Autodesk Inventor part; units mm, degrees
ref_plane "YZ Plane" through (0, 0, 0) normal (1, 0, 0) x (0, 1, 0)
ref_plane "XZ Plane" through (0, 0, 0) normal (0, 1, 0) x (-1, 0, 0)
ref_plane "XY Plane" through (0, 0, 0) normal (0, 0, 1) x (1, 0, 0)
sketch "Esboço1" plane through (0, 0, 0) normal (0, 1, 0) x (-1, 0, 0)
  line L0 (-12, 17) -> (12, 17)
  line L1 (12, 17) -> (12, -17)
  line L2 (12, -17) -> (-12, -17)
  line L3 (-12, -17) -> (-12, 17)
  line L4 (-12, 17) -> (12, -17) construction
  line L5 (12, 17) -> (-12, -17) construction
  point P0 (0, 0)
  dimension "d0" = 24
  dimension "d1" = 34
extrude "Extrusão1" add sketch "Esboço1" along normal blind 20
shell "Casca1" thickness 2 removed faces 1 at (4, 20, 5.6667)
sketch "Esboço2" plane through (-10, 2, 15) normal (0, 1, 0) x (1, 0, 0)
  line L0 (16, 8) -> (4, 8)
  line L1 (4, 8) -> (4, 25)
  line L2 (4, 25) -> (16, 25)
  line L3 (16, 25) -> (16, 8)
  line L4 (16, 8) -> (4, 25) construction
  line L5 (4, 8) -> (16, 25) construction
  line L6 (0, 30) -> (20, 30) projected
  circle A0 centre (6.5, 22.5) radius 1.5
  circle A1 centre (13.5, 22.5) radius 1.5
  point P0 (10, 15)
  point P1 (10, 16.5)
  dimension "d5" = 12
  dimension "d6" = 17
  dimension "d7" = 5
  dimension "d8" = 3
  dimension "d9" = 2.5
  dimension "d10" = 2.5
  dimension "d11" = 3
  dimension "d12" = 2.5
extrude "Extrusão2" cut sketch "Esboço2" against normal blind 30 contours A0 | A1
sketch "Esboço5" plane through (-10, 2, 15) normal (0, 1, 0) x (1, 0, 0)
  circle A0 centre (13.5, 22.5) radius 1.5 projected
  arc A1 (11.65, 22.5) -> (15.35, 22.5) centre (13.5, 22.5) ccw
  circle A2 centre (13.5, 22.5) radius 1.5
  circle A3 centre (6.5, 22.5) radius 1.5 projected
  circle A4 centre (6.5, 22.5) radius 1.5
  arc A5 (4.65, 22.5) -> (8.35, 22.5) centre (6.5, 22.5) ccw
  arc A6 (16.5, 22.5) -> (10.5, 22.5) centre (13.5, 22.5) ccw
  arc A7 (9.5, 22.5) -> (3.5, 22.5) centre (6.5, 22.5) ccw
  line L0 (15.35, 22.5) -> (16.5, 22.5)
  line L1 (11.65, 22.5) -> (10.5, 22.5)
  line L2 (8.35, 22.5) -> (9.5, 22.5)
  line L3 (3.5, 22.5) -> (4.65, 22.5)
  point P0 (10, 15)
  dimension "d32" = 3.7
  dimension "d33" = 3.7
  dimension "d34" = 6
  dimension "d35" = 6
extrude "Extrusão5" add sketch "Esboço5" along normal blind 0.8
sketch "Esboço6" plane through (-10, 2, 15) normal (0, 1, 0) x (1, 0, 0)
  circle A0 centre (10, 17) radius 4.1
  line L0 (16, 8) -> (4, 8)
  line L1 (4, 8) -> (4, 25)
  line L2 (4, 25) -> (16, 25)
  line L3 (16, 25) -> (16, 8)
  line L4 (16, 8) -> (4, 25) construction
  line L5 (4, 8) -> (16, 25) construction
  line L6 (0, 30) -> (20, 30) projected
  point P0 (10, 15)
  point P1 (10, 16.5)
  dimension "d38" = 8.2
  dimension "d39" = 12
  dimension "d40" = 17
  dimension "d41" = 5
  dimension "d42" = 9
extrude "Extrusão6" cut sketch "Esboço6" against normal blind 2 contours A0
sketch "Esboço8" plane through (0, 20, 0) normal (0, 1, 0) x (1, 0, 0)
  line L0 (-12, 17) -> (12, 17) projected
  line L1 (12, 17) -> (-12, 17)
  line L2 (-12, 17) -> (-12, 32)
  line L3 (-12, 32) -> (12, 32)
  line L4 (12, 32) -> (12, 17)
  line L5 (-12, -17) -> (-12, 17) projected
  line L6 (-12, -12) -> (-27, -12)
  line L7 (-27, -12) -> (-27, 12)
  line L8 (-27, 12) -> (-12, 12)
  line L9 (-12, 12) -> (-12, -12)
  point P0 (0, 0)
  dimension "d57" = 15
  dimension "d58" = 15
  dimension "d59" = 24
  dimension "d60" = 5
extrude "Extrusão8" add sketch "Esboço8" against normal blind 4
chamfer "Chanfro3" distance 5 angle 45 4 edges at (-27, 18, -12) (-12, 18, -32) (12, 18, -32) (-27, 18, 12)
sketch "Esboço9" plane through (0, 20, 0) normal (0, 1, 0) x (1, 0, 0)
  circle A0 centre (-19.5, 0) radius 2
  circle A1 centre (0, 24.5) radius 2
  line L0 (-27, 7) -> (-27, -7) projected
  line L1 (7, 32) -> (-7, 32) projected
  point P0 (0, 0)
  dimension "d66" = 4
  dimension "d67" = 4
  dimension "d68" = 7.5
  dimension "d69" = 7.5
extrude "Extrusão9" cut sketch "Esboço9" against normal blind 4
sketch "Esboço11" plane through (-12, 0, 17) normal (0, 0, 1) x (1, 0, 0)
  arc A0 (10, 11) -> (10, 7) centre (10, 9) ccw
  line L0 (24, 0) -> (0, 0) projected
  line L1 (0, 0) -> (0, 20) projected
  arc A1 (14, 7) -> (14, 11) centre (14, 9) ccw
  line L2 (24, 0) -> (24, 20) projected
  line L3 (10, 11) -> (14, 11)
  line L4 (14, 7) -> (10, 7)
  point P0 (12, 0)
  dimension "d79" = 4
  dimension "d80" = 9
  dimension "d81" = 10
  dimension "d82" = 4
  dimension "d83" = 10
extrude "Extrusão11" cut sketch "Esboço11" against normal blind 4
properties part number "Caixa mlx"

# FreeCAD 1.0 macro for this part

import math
import FreeCAD as App
import Part
import Sketcher
from FreeCAD import Vector
Q = App.Units.Quantity


def edges_at(feature, points):
    """Names of the edges that pass closest to the given points."""
    edges = feature.Shape.Edges
    near = lambda p: min(range(len(edges)), key=lambda i: edges[i].distToShape(Part.Vertex(*p))[0])
    return sorted({f"Edge{near(p) + 1}" for p in points})


def faces_at(feature, points):
    """Names of the faces that lie closest to the given points."""
    faces = feature.Shape.Faces
    near = lambda p: min(range(len(faces)), key=lambda i: faces[i].distToShape(Part.Vertex(*p))[0])
    return sorted({f"Face{near(p) + 1}" for p in points})

doc = App.newDocument("Part")
body = doc.addObject("PartDesign::Body", "Body")

# Sketch on XZ plane
sketch1 = body.newObject("Sketcher::SketchObject", "Sketch")
sketch1.AttachmentSupport = (doc.getObject("XZ_Plane"), [""])
sketch1.MapMode = "FlatFace"
sketch1.addGeometry([
    Part.LineSegment(Vector(-12, 17, 0), Vector(12, 17, 0)),
    Part.LineSegment(Vector(12, 17, 0), Vector(12, -17, 0)),
    Part.LineSegment(Vector(12, -17, 0), Vector(-12, -17, 0)),
    Part.LineSegment(Vector(-12, -17, 0), Vector(-12, 17, 0)),
], False)
sketch1.addConstraint([
    Sketcher.Constraint("Coincident", 0, 2, 1, 1),
    Sketcher.Constraint("Coincident", 1, 2, 2, 1),
    Sketcher.Constraint("Coincident", 2, 2, 3, 1),
    Sketcher.Constraint("Coincident", 3, 2, 0, 1),
    Sketcher.Constraint("Horizontal", 0),
    Sketcher.Constraint("Vertical", 1),
    Sketcher.Constraint("Horizontal", 2),
    Sketcher.Constraint("Vertical", 3),
    Sketcher.Constraint("Symmetric", 0, 2, 2, 2, -1, 1),
    Sketcher.Constraint("DistanceX", 0, 1, 0, 2, Q("24 mm")),
    Sketcher.Constraint("DistanceY", 1, 2, 1, 1, Q("34 mm")),
])
pad1 = body.newObject("PartDesign::Pad", "Pad")
pad1.Profile = sketch1
pad1.Length = 20
pad1.Reversed = True
doc.recompute()

thickness = body.newObject("PartDesign::Thickness", "Thickness")
thickness.Base = (pad1, faces_at(pad1, [(4, 20, 5.667)]))
thickness.Value = 2
thickness.Reversed = True
thickness.Join = "Intersection"

# Sketch on XZ plane
sketch2 = body.newObject("Sketcher::SketchObject", "Sketch001")
sketch2.AttachmentSupport = (doc.getObject("XZ_Plane"), [""])
sketch2.MapMode = "FlatFace"
sketch2.AttachmentOffset = App.Placement(Vector(0, 0, -2), App.Rotation())
sketch2.addGeometry([
    Part.Circle(Vector(-3.5, -7.5, 0), Vector(0, 0, 1), 1.5),
    Part.Circle(Vector(3.5, -7.5, 0), Vector(0, 0, 1), 1.5),
], False)
sketch2.addConstraint([
    Sketcher.Constraint("Equal", 0, 1),
    Sketcher.Constraint("Symmetric", 0, 3, 1, 3, -2),
    Sketcher.Constraint("Diameter", 0, Q("3 mm")),
    Sketcher.Constraint("DistanceX", 0, 3, 1, 3, Q("7 mm")),
    Sketcher.Constraint("DistanceY", 0, 3, -1, 1, Q("7.5 mm")),
])
pocket1 = body.newObject("PartDesign::Pocket", "Pocket")
pocket1.Profile = sketch2
pocket1.Length = 30
pocket1.Reversed = True

# Sketch on XZ plane
sketch3 = body.newObject("Sketcher::SketchObject", "Sketch002")
sketch3.AttachmentSupport = (doc.getObject("XZ_Plane"), [""])
sketch3.MapMode = "FlatFace"
sketch3.AttachmentOffset = App.Placement(Vector(0, 0, -2), App.Rotation())
sketch3.addGeometry([
    Part.LineSegment(Vector(0.5, -7.5, 0), Vector(1.6, -7.5, 0)),  # 0
    Part.ArcOfCircle(Part.Circle(Vector(3.5, -7.5, 0), Vector(0, 0, 1), 1.8), math.radians(0), math.radians(180)),  # 1
    Part.LineSegment(Vector(5.3, -7.5, 0), Vector(6.5, -7.5, 0)),  # 2
    Part.ArcOfCircle(Part.Circle(Vector(3.5, -7.5, 0), Vector(0, 0, 1), 3), math.radians(180), math.radians(360)),  # 3
    Part.Circle(Vector(3.5, -7.5, 0), Vector(0, 0, 1), 1.5),  # 4
    Part.LineSegment(Vector(-6.5, -7.5, 0), Vector(-5.3, -7.5, 0)),  # 5
    Part.ArcOfCircle(Part.Circle(Vector(-3.5, -7.5, 0), Vector(0, 0, 1), 1.8), math.radians(0), math.radians(180)),  # 6
    Part.LineSegment(Vector(-1.6, -7.5, 0), Vector(-0.5, -7.5, 0)),  # 7
    Part.ArcOfCircle(Part.Circle(Vector(-3.5, -7.5, 0), Vector(0, 0, 1), 3), math.radians(180), math.radians(360)),  # 8
    Part.Circle(Vector(-3.5, -7.5, 0), Vector(0, 0, 1), 1.5),  # 9
], False)
sketch3.addConstraint([
    Sketcher.Constraint("Coincident", 0, 2, 1, 2),
    Sketcher.Constraint("Coincident", 1, 1, 2, 1),
    Sketcher.Constraint("Coincident", 2, 2, 3, 2),
    Sketcher.Constraint("Coincident", 3, 1, 0, 1),
    Sketcher.Constraint("Coincident", 5, 2, 6, 2),
    Sketcher.Constraint("Coincident", 6, 1, 7, 1),
    Sketcher.Constraint("Coincident", 7, 2, 8, 2),
    Sketcher.Constraint("Coincident", 8, 1, 5, 1),
    Sketcher.Constraint("Horizontal", 0),
    Sketcher.Constraint("Horizontal", 2),
    Sketcher.Constraint("Horizontal", 5),
    Sketcher.Constraint("Horizontal", 7),
    Sketcher.Constraint("Coincident", 3, 3, 1, 3),
    Sketcher.Constraint("Coincident", 4, 3, 1, 3),
    Sketcher.Constraint("Coincident", 8, 3, 6, 3),
    Sketcher.Constraint("Coincident", 9, 3, 6, 3),
    Sketcher.Constraint("Equal", 1, 6),
    Sketcher.Constraint("Equal", 3, 8),
    Sketcher.Constraint("Equal", 4, 9),
    Sketcher.Constraint("Symmetric", 1, 3, 6, 3, -2),
    Sketcher.Constraint("Horizontal", 9, 3, 0, 2),
    Sketcher.Constraint("Horizontal", 0, 2, 1, 1),
    Sketcher.Constraint("Horizontal", 3, 1, 5, 2),
    Sketcher.Constraint("Horizontal", 5, 2, 6, 1),
    Sketcher.Constraint("Radius", 3, Q("3 mm")),
    Sketcher.Constraint("Radius", 1, Q("1.85 mm")),
    Sketcher.Constraint("Diameter", 4, Q("3 mm")),
    Sketcher.Constraint("DistanceX", 6, 3, 1, 3, Q("7 mm")),
    Sketcher.Constraint("DistanceY", 1, 3, -1, 1, Q("7.5 mm")),
])
pad2 = body.newObject("PartDesign::Pad", "Pad001")
pad2.Profile = sketch3
pad2.Length = 0.8
pad2.Reversed = True

# Sketch on XZ plane
sketch4 = body.newObject("Sketcher::SketchObject", "Sketch003")
sketch4.AttachmentSupport = (doc.getObject("XZ_Plane"), [""])
sketch4.MapMode = "FlatFace"
sketch4.AttachmentOffset = App.Placement(Vector(0, 0, -2), App.Rotation())
sketch4.addGeometry(Part.Circle(Vector(0, -2, 0), Vector(0, 0, 1), 4.1), False)
sketch4.addConstraint([
    Sketcher.Constraint("PointOnObject", 0, 3, -2),
    Sketcher.Constraint("Diameter", 0, Q("8.2 mm")),
    Sketcher.Constraint("DistanceY", 0, 3, -1, 1, Q("2 mm")),
])
pocket2 = body.newObject("PartDesign::Pocket", "Pocket001")
pocket2.Profile = sketch4
pocket2.Length = 2
pocket2.Reversed = True

# Sketch on XZ plane
sketch5 = body.newObject("Sketcher::SketchObject", "Sketch004")
sketch5.AttachmentSupport = (doc.getObject("XZ_Plane"), [""])
sketch5.MapMode = "FlatFace"
sketch5.AttachmentOffset = App.Placement(Vector(0, 0, -20), App.Rotation())
sketch5.addGeometry([
    Part.LineSegment(Vector(-12, -32, 0), Vector(-12, -17, 0)),  # 0
    Part.LineSegment(Vector(-12, -17, 0), Vector(12, -17, 0)),  # 1
    Part.LineSegment(Vector(12, -17, 0), Vector(12, -32, 0)),  # 2
    Part.LineSegment(Vector(12, -32, 0), Vector(-12, -32, 0)),  # 3
    Part.LineSegment(Vector(-12, 12, 0), Vector(-12, -12, 0)),  # 4
    Part.LineSegment(Vector(-12, -12, 0), Vector(-27, -12, 0)),  # 5
    Part.LineSegment(Vector(-27, -12, 0), Vector(-27, 12, 0)),  # 6
    Part.LineSegment(Vector(-27, 12, 0), Vector(-12, 12, 0)),  # 7
], False)
sketch5.addConstraint([
    Sketcher.Constraint("Coincident", 0, 2, 1, 1),
    Sketcher.Constraint("Coincident", 1, 2, 2, 1),
    Sketcher.Constraint("Coincident", 2, 2, 3, 1),
    Sketcher.Constraint("Coincident", 3, 2, 0, 1),
    Sketcher.Constraint("Coincident", 4, 2, 5, 1),
    Sketcher.Constraint("Coincident", 5, 2, 6, 1),
    Sketcher.Constraint("Coincident", 6, 2, 7, 1),
    Sketcher.Constraint("Coincident", 7, 2, 4, 1),
    Sketcher.Constraint("Vertical", 0),
    Sketcher.Constraint("Horizontal", 1),
    Sketcher.Constraint("Vertical", 2),
    Sketcher.Constraint("Horizontal", 3),
    Sketcher.Constraint("Vertical", 4),
    Sketcher.Constraint("Horizontal", 5),
    Sketcher.Constraint("Vertical", 6),
    Sketcher.Constraint("Horizontal", 7),
    Sketcher.Constraint("Vertical", 3, 2, 4, 2),
    Sketcher.Constraint("Equal", 7, 0),
    Sketcher.Constraint("Equal", 3, 4),
    Sketcher.Constraint("DistanceX", 1, 1, 1, 2, Q("24 mm")),
    Sketcher.Constraint("DistanceX", 5, 2, 5, 1, Q("15 mm")),
    Sketcher.Constraint("DistanceY", 0, 2, 4, 2, Q("5 mm")),
    Sketcher.Constraint("DistanceX", 0, 2, -1, 1, Q("12 mm")),
    Sketcher.Constraint("DistanceY", 0, 2, -1, 1, Q("17 mm")),
])
pad3 = body.newObject("PartDesign::Pad", "Pad002")
pad3.Profile = sketch5
pad3.Length = 4
doc.recompute()

chamfer = body.newObject("PartDesign::Chamfer", "Chamfer")
chamfer.Base = (pad3, edges_at(pad3, [
    (-27, 18, -12),
    (-12, 18, -32),
    (12, 18, -32),
    (-27, 18, 12),
]))
chamfer.Size = 5

# Sketch on XZ plane
sketch6 = body.newObject("Sketcher::SketchObject", "Sketch005")
sketch6.AttachmentSupport = (doc.getObject("XZ_Plane"), [""])
sketch6.MapMode = "FlatFace"
sketch6.AttachmentOffset = App.Placement(Vector(0, 0, -20), App.Rotation())
sketch6.addGeometry([
    Part.Circle(Vector(-19.5, 0, 0), Vector(0, 0, 1), 2),
    Part.Circle(Vector(0, -24.5, 0), Vector(0, 0, 1), 2),
], False)
sketch6.addConstraint([
    Sketcher.Constraint("Equal", 0, 1),
    Sketcher.Constraint("PointOnObject", 0, 3, -1),
    Sketcher.Constraint("PointOnObject", 1, 3, -2),
    Sketcher.Constraint("Diameter", 0, Q("4 mm")),
    Sketcher.Constraint("DistanceX", 0, 3, -1, 1, Q("19.5 mm")),
    Sketcher.Constraint("DistanceY", 1, 3, -1, 1, Q("24.5 mm")),
])
pocket3 = body.newObject("PartDesign::Pocket", "Pocket002")
pocket3.Profile = sketch6
pocket3.Length = 4
pocket3.Reversed = True

# Sketch on XY plane
sketch7 = body.newObject("Sketcher::SketchObject", "Sketch006")
sketch7.AttachmentSupport = (doc.getObject("XY_Plane"), [""])
sketch7.MapMode = "FlatFace"
sketch7.AttachmentOffset = App.Placement(Vector(0, 0, 17), App.Rotation())
sketch7.addGeometry([
    Part.LineSegment(Vector(2, 11, 0), Vector(-2, 11, 0)),
    Part.ArcOfCircle(Part.Circle(Vector(-2, 9, 0), Vector(0, 0, 1), 2), math.radians(90), math.radians(270)),
    Part.LineSegment(Vector(-2, 7, 0), Vector(2, 7, 0)),
    Part.ArcOfCircle(Part.Circle(Vector(2, 9, 0), Vector(0, 0, 1), 2), math.radians(-90), math.radians(90)),
], False)
sketch7.addConstraint([
    Sketcher.Constraint("Tangent", 0, 2, 1, 1),
    Sketcher.Constraint("Tangent", 1, 2, 2, 1),
    Sketcher.Constraint("Tangent", 2, 2, 3, 1),
    Sketcher.Constraint("Tangent", 3, 2, 0, 1),
    Sketcher.Constraint("Horizontal", 0),
    Sketcher.Constraint("Horizontal", 2),
    Sketcher.Constraint("Radius", 1, Q("2 mm")),
    Sketcher.Constraint("DistanceX", 0, 2, 0, 1, Q("4 mm")),
    Sketcher.Constraint("DistanceY", -1, 1, 1, 3, Q("9 mm")),
    Sketcher.Constraint("DistanceX", 1, 3, -1, 1, Q("2 mm")),
])
pocket4 = body.newObject("PartDesign::Pocket", "Pocket003")
pocket4.Profile = sketch7
pocket4.Length = 4

doc.recompute()
